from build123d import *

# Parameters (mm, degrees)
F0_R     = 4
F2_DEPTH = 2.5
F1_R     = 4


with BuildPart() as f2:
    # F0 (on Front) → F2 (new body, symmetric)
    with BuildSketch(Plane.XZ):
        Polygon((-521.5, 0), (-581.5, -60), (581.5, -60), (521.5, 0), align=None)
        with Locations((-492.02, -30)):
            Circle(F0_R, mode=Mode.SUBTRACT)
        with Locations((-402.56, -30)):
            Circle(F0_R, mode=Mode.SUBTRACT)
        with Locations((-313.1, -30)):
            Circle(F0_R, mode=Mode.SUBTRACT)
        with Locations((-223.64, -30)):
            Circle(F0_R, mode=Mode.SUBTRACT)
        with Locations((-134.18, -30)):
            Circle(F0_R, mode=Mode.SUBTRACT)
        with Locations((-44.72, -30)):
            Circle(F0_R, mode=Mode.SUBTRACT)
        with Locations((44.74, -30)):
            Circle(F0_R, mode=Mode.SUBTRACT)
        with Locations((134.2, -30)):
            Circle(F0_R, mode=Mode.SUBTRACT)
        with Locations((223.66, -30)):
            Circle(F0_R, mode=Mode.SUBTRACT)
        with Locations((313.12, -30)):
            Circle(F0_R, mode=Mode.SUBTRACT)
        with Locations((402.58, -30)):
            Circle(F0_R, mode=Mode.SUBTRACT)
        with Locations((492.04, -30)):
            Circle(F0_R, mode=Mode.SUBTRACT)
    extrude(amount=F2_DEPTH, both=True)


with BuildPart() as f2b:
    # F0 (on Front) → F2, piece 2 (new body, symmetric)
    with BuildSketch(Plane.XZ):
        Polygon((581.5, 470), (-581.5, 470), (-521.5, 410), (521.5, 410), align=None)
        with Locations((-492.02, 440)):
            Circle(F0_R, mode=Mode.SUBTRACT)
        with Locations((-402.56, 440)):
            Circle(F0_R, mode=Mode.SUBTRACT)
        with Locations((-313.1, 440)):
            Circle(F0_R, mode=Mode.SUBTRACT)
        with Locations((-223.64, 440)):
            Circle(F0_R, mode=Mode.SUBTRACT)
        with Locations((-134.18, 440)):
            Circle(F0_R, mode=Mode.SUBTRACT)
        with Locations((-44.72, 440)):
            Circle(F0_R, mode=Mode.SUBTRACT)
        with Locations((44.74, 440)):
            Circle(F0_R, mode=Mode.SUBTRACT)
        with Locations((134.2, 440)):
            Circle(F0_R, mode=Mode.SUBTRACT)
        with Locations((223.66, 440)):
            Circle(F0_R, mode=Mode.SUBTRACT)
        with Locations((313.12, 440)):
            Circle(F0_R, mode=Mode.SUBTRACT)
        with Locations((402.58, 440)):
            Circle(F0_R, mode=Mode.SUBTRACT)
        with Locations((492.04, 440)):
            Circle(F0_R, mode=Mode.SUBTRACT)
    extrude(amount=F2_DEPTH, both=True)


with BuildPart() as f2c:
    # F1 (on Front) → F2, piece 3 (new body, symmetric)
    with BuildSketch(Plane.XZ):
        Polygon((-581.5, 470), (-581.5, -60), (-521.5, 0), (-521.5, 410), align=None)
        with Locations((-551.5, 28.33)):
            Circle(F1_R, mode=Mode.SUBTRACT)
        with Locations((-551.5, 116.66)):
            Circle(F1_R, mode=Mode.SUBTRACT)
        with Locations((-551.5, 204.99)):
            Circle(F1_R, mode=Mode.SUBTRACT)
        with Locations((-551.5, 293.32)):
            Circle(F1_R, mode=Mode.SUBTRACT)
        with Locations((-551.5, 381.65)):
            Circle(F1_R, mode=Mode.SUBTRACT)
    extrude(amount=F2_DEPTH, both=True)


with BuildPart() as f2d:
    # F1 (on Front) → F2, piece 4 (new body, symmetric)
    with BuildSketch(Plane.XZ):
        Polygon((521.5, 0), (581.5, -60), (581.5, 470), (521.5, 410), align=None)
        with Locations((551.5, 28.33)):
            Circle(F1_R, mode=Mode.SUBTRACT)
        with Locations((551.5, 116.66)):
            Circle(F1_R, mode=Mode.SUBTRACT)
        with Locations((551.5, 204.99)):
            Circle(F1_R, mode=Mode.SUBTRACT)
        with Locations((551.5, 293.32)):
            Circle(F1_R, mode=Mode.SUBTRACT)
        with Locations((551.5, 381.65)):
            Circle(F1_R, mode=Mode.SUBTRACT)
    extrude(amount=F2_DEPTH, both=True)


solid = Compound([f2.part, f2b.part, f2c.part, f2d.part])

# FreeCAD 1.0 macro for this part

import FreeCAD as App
import Part
import Sketcher
Q = App.Units.Quantity


def add_polygon(sketch, points):
    """Adds a closed chain of lines whose ends are joined by coincident constraints."""
    first, n = sketch.GeometryCount, len(points)
    for a, b in zip(points, points[1:] + points[:1]):
        sketch.addGeometry(Part.LineSegment(App.Vector(*a, 0), App.Vector(*b, 0)), False)
    for i in range(n):
        sketch.addConstraint(Sketcher.Constraint("Coincident", first + i, 2, first + (i + 1) % n, 1))

doc = App.newDocument("Part")
body = doc.addObject("PartDesign::Body", "Body")

# Sketch on XZ plane
sketch1 = body.newObject("Sketcher::SketchObject", "Sketch")
sketch1.AttachmentSupport = (doc.getObject("XZ_Plane"), [""])
sketch1.MapMode = "FlatFace"
add_polygon(sketch1, [(-521.5, 0), (-581.5, -60), (581.5, -60), (521.5, 0)])  # lines 0-3
sketch1.addGeometry(Part.Circle(App.Vector(-492, -30, 0), App.Vector(0, 0, 1), 4), False)  # 4
sketch1.addGeometry(Part.Circle(App.Vector(-402.6, -30, 0), App.Vector(0, 0, 1), 4), False)  # 5
sketch1.addGeometry(Part.Circle(App.Vector(-313.1, -30, 0), App.Vector(0, 0, 1), 4), False)  # 6
sketch1.addGeometry(Part.Circle(App.Vector(-223.6, -30, 0), App.Vector(0, 0, 1), 4), False)  # 7
sketch1.addGeometry(Part.Circle(App.Vector(-134.2, -30, 0), App.Vector(0, 0, 1), 4), False)  # 8
sketch1.addGeometry(Part.Circle(App.Vector(-44.7, -30, 0), App.Vector(0, 0, 1), 4), False)  # 9
sketch1.addGeometry(Part.Circle(App.Vector(44.7, -30, 0), App.Vector(0, 0, 1), 4), False)  # 10
sketch1.addGeometry(Part.Circle(App.Vector(134.2, -30, 0), App.Vector(0, 0, 1), 4), False)  # 11
sketch1.addGeometry(Part.Circle(App.Vector(223.7, -30, 0), App.Vector(0, 0, 1), 4), False)  # 12
sketch1.addGeometry(Part.Circle(App.Vector(313.1, -30, 0), App.Vector(0, 0, 1), 4), False)  # 13
sketch1.addGeometry(Part.Circle(App.Vector(402.6, -30, 0), App.Vector(0, 0, 1), 4), False)  # 14
sketch1.addGeometry(Part.Circle(App.Vector(492, -30, 0), App.Vector(0, 0, 1), 4), False)  # 15
sketch1.addConstraint(Sketcher.Constraint("Horizontal", 1))
sketch1.addConstraint(Sketcher.Constraint("Horizontal", 3))
sketch1.addConstraint(Sketcher.Constraint("Equal", 4, 5))
sketch1.addConstraint(Sketcher.Constraint("Equal", 5, 6))
sketch1.addConstraint(Sketcher.Constraint("Equal", 6, 7))
sketch1.addConstraint(Sketcher.Constraint("Equal", 7, 8))
sketch1.addConstraint(Sketcher.Constraint("Equal", 8, 9))
sketch1.addConstraint(Sketcher.Constraint("Equal", 9, 10))
sketch1.addConstraint(Sketcher.Constraint("Equal", 10, 11))
sketch1.addConstraint(Sketcher.Constraint("Equal", 11, 12))
sketch1.addConstraint(Sketcher.Constraint("Equal", 12, 13))
sketch1.addConstraint(Sketcher.Constraint("Equal", 13, 14))
sketch1.addConstraint(Sketcher.Constraint("Equal", 14, 15))
sketch1.addConstraint(Sketcher.Constraint("Symmetric", 2, 2, 3, 2, -1, 1))
sketch1.addConstraint(Sketcher.Constraint("Perpendicular", 0, 2))
sketch1.addConstraint(Sketcher.Constraint("Horizontal", 4, 3, 5, 3))
sketch1.addConstraint(Sketcher.Constraint("Horizontal", 5, 3, 6, 3))
sketch1.addConstraint(Sketcher.Constraint("Horizontal", 6, 3, 7, 3))
sketch1.addConstraint(Sketcher.Constraint("Horizontal", 7, 3, 8, 3))
sketch1.addConstraint(Sketcher.Constraint("Horizontal", 8, 3, 9, 3))
sketch1.addConstraint(Sketcher.Constraint("Horizontal", 9, 3, 10, 3))
sketch1.addConstraint(Sketcher.Constraint("Horizontal", 10, 3, 11, 3))
sketch1.addConstraint(Sketcher.Constraint("Horizontal", 11, 3, 12, 3))
sketch1.addConstraint(Sketcher.Constraint("Horizontal", 12, 3, 13, 3))
sketch1.addConstraint(Sketcher.Constraint("Horizontal", 13, 3, 14, 3))
sketch1.addConstraint(Sketcher.Constraint("Horizontal", 14, 3, 15, 3))
sketch1.addConstraint(Sketcher.Constraint("Equal", 0, 2))
sketch1.addConstraint(Sketcher.Constraint("Diameter", 4, Q("8 mm")))
sketch1.addConstraint(Sketcher.Constraint("DistanceX", 1, 1, 1, 2, Q("1163 mm")))
sketch1.addConstraint(Sketcher.Constraint("DistanceX", 3, 2, 3, 1, Q("1043 mm")))
sketch1.addConstraint(Sketcher.Constraint("DistanceY", 4, 3, -1, 1, Q("30 mm")))
sketch1.addConstraint(Sketcher.Constraint("DistanceX", 6, 3, -1, 1, Q("313.1 mm")))
sketch1.addConstraint(Sketcher.Constraint("DistanceX", -1, 1, 11, 3, Q("134.2 mm")))
sketch1.addConstraint(Sketcher.Constraint("DistanceX", 4, 3, 9, 3, Q("447.3 mm")))
sketch1.addConstraint(Sketcher.Constraint("DistanceX", 5, 3, 10, 3, Q("447.3 mm")))
sketch1.addConstraint(Sketcher.Constraint("DistanceX", 7, 3, 12, 3, Q("447.3 mm")))
sketch1.addConstraint(Sketcher.Constraint("DistanceX", 8, 3, 13, 3, Q("447.3 mm")))
sketch1.addConstraint(Sketcher.Constraint("DistanceX", 9, 3, 14, 3, Q("447.3 mm")))
sketch1.addConstraint(Sketcher.Constraint("DistanceX", 10, 3, 15, 3, Q("447.3 mm")))
sketch1.addConstraint(Sketcher.Constraint("DistanceX", 4, 3, -1, 1, Q("492.02 mm")))
sketch1.addConstraint(Sketcher.Constraint("DistanceX", 5, 3, -1, 1, Q("402.56 mm")))
sketch1.addConstraint(Sketcher.Constraint("DistanceX", 7, 3, -1, 1, Q("223.64 mm")))
sketch1.addConstraint(Sketcher.Constraint("DistanceX", 8, 3, -1, 1, Q("134.18 mm")))
pad1 = body.newObject("PartDesign::Pad", "Pad")
pad1.Profile = sketch1
pad1.Length = 5
pad1.Midplane = True
body2 = doc.addObject("PartDesign::Body", "Body001")

# Sketch on XZ plane
sketch2 = body2.newObject("Sketcher::SketchObject", "Sketch001")
sketch2.AttachmentSupport = (doc.getObject("XZ_Plane001"), [""])
sketch2.MapMode = "FlatFace"
add_polygon(sketch2, [(581.5, 470), (-581.5, 470), (-521.5, 410), (521.5, 410)])  # lines 0-3
sketch2.addGeometry(Part.Circle(App.Vector(-492, 440, 0), App.Vector(0, 0, 1), 4), False)  # 4
sketch2.addGeometry(Part.Circle(App.Vector(-402.6, 440, 0), App.Vector(0, 0, 1), 4), False)  # 5
sketch2.addGeometry(Part.Circle(App.Vector(-313.1, 440, 0), App.Vector(0, 0, 1), 4), False)  # 6
sketch2.addGeometry(Part.Circle(App.Vector(-223.6, 440, 0), App.Vector(0, 0, 1), 4), False)  # 7
sketch2.addGeometry(Part.Circle(App.Vector(-134.2, 440, 0), App.Vector(0, 0, 1), 4), False)  # 8
sketch2.addGeometry(Part.Circle(App.Vector(-44.7, 440, 0), App.Vector(0, 0, 1), 4), False)  # 9
sketch2.addGeometry(Part.Circle(App.Vector(44.7, 440, 0), App.Vector(0, 0, 1), 4), False)  # 10
sketch2.addGeometry(Part.Circle(App.Vector(134.2, 440, 0), App.Vector(0, 0, 1), 4), False)  # 11
sketch2.addGeometry(Part.Circle(App.Vector(223.7, 440, 0), App.Vector(0, 0, 1), 4), False)  # 12
sketch2.addGeometry(Part.Circle(App.Vector(313.1, 440, 0), App.Vector(0, 0, 1), 4), False)  # 13
sketch2.addGeometry(Part.Circle(App.Vector(402.6, 440, 0), App.Vector(0, 0, 1), 4), False)  # 14
sketch2.addGeometry(Part.Circle(App.Vector(492, 440, 0), App.Vector(0, 0, 1), 4), False)  # 15
sketch2.addConstraint(Sketcher.Constraint("Horizontal", 0))
sketch2.addConstraint(Sketcher.Constraint("Horizontal", 2))
sketch2.addConstraint(Sketcher.Constraint("Equal", 4, 5))
sketch2.addConstraint(Sketcher.Constraint("Equal", 5, 6))
sketch2.addConstraint(Sketcher.Constraint("Equal", 6, 7))
sketch2.addConstraint(Sketcher.Constraint("Equal", 7, 8))
sketch2.addConstraint(Sketcher.Constraint("Equal", 8, 9))
sketch2.addConstraint(Sketcher.Constraint("Equal", 9, 10))
sketch2.addConstraint(Sketcher.Constraint("Equal", 10, 11))
sketch2.addConstraint(Sketcher.Constraint("Equal", 11, 12))
sketch2.addConstraint(Sketcher.Constraint("Equal", 12, 13))
sketch2.addConstraint(Sketcher.Constraint("Equal", 13, 14))
sketch2.addConstraint(Sketcher.Constraint("Equal", 14, 15))
sketch2.addConstraint(Sketcher.Constraint("Perpendicular", 1, 3))
sketch2.addConstraint(Sketcher.Constraint("Horizontal", 4, 3, 5, 3))
sketch2.addConstraint(Sketcher.Constraint("Horizontal", 5, 3, 6, 3))
sketch2.addConstraint(Sketcher.Constraint("Horizontal", 6, 3, 7, 3))
sketch2.addConstraint(Sketcher.Constraint("Horizontal", 7, 3, 8, 3))
sketch2.addConstraint(Sketcher.Constraint("Horizontal", 8, 3, 9, 3))
sketch2.addConstraint(Sketcher.Constraint("Horizontal", 9, 3, 10, 3))
sketch2.addConstraint(Sketcher.Constraint("Horizontal", 10, 3, 11, 3))
sketch2.addConstraint(Sketcher.Constraint("Horizontal", 11, 3, 12, 3))
sketch2.addConstraint(Sketcher.Constraint("Horizontal", 12, 3, 13, 3))
sketch2.addConstraint(Sketcher.Constraint("Horizontal", 13, 3, 14, 3))
sketch2.addConstraint(Sketcher.Constraint("Horizontal", 14, 3, 15, 3))
sketch2.addConstraint(Sketcher.Constraint("Equal", 1, 3))
sketch2.addConstraint(Sketcher.Constraint("Diameter", 4, Q("8 mm")))
sketch2.addConstraint(Sketcher.Constraint("DistanceX", 0, 2, 0, 1, Q("1163 mm")))
sketch2.addConstraint(Sketcher.Constraint("DistanceX", 2, 1, 2, 2, Q("1043 mm")))
sketch2.addConstraint(Sketcher.Constraint("DistanceY", -1, 1, 4, 3, Q("440 mm")))
sketch2.addConstraint(Sketcher.Constraint("DistanceY", -1, 1, 0, 2, Q("470 mm")))
sketch2.addConstraint(Sketcher.Constraint("DistanceX", 6, 3, -1, 1, Q("313.1 mm")))
sketch2.addConstraint(Sketcher.Constraint("DistanceX", -1, 1, 11, 3, Q("134.2 mm")))
sketch2.addConstraint(Sketcher.Constraint("DistanceX", 0, 2, -1, 1, Q("581.5 mm")))
sketch2.addConstraint(Sketcher.Constraint("DistanceX", 4, 3, 9, 3, Q("447.3 mm")))
sketch2.addConstraint(Sketcher.Constraint("DistanceX", 5, 3, 10, 3, Q("447.3 mm")))
sketch2.addConstraint(Sketcher.Constraint("DistanceX", 7, 3, 12, 3, Q("447.3 mm")))
sketch2.addConstraint(Sketcher.Constraint("DistanceX", 8, 3, 13, 3, Q("447.3 mm")))
sketch2.addConstraint(Sketcher.Constraint("DistanceX", 9, 3, 14, 3, Q("447.3 mm")))
sketch2.addConstraint(Sketcher.Constraint("DistanceX", 10, 3, 15, 3, Q("447.3 mm")))
sketch2.addConstraint(Sketcher.Constraint("DistanceX", 4, 3, -1, 1, Q("492.02 mm")))
sketch2.addConstraint(Sketcher.Constraint("DistanceX", 5, 3, -1, 1, Q("402.56 mm")))
sketch2.addConstraint(Sketcher.Constraint("DistanceX", 7, 3, -1, 1, Q("223.64 mm")))
sketch2.addConstraint(Sketcher.Constraint("DistanceX", 8, 3, -1, 1, Q("134.18 mm")))
pad2 = body2.newObject("PartDesign::Pad", "Pad001")
pad2.Profile = sketch2
pad2.Length = 5
pad2.Midplane = True
body3 = doc.addObject("PartDesign::Body", "Body002")

# Sketch on XZ plane
sketch3 = body3.newObject("Sketcher::SketchObject", "Sketch002")
sketch3.AttachmentSupport = (doc.getObject("XZ_Plane002"), [""])
sketch3.MapMode = "FlatFace"
add_polygon(sketch3, [(-581.5, 470), (-581.5, -60), (-521.5, 0), (-521.5, 410)])  # lines 0-3
sketch3.addGeometry(Part.Circle(App.Vector(-551.5, 28.3, 0), App.Vector(0, 0, 1), 4), False)  # 4
sketch3.addGeometry(Part.Circle(App.Vector(-551.5, 116.7, 0), App.Vector(0, 0, 1), 4), False)  # 5
sketch3.addGeometry(Part.Circle(App.Vector(-551.5, 205, 0), App.Vector(0, 0, 1), 4), False)  # 6
sketch3.addGeometry(Part.Circle(App.Vector(-551.5, 293.3, 0), App.Vector(0, 0, 1), 4), False)  # 7
sketch3.addGeometry(Part.Circle(App.Vector(-551.5, 381.6, 0), App.Vector(0, 0, 1), 4), False)  # 8
sketch3.addConstraint(Sketcher.Constraint("Vertical", 0))
sketch3.addConstraint(Sketcher.Constraint("Vertical", 2))
sketch3.addConstraint(Sketcher.Constraint("Equal", 4, 5))
sketch3.addConstraint(Sketcher.Constraint("Equal", 5, 6))
sketch3.addConstraint(Sketcher.Constraint("Equal", 6, 7))
sketch3.addConstraint(Sketcher.Constraint("Equal", 7, 8))
sketch3.addConstraint(Sketcher.Constraint("PointOnObject", 1, 2, -1))
sketch3.addConstraint(Sketcher.Constraint("Perpendicular", 1, 3))
sketch3.addConstraint(Sketcher.Constraint("Vertical", 4, 3, 5, 3))
sketch3.addConstraint(Sketcher.Constraint("Vertical", 5, 3, 6, 3))
sketch3.addConstraint(Sketcher.Constraint("Vertical", 6, 3, 7, 3))
sketch3.addConstraint(Sketcher.Constraint("Vertical", 7, 3, 8, 3))
sketch3.addConstraint(Sketcher.Constraint("Equal", 1, 3))
sketch3.addConstraint(Sketcher.Constraint("Diameter", 4, Q("8 mm")))
sketch3.addConstraint(Sketcher.Constraint("DistanceY", 0, 2, 0, 1, Q("530 mm")))
sketch3.addConstraint(Sketcher.Constraint("DistanceY", 2, 1, 2, 2, Q("410 mm")))
sketch3.addConstraint(Sketcher.Constraint("DistanceX", 0, 2, 4, 3, Q("30 mm")))
sketch3.addConstraint(Sketcher.Constraint("DistanceX", 4, 3, -1, 1, Q("551.5 mm")))
sketch3.addConstraint(Sketcher.Constraint("DistanceY", -1, 1, 4, 3, Q("28.33 mm")))
sketch3.addConstraint(Sketcher.Constraint("DistanceY", -1, 1, 5, 3, Q("116.66 mm")))
sketch3.addConstraint(Sketcher.Constraint("DistanceY", -1, 1, 6, 3, Q("204.99 mm")))
sketch3.addConstraint(Sketcher.Constraint("DistanceY", -1, 1, 7, 3, Q("293.32 mm")))
sketch3.addConstraint(Sketcher.Constraint("DistanceY", -1, 1, 8, 3, Q("381.65 mm")))
pad3 = body3.newObject("PartDesign::Pad", "Pad002")
pad3.Profile = sketch3
pad3.Length = 5
pad3.Midplane = True
body4 = doc.addObject("PartDesign::Body", "Body003")

# Sketch on XZ plane
sketch4 = body4.newObject("Sketcher::SketchObject", "Sketch003")
sketch4.AttachmentSupport = (doc.getObject("XZ_Plane003"), [""])
sketch4.MapMode = "FlatFace"
add_polygon(sketch4, [(521.5, 0), (581.5, -60), (581.5, 470), (521.5, 410)])  # lines 0-3
sketch4.addGeometry(Part.Circle(App.Vector(551.5, 28.3, 0), App.Vector(0, 0, 1), 4), False)  # 4
sketch4.addGeometry(Part.Circle(App.Vector(551.5, 116.7, 0), App.Vector(0, 0, 1), 4), False)  # 5
sketch4.addGeometry(Part.Circle(App.Vector(551.5, 205, 0), App.Vector(0, 0, 1), 4), False)  # 6
sketch4.addGeometry(Part.Circle(App.Vector(551.5, 293.3, 0), App.Vector(0, 0, 1), 4), False)  # 7
sketch4.addGeometry(Part.Circle(App.Vector(551.5, 381.6, 0), App.Vector(0, 0, 1), 4), False)  # 8
sketch4.addConstraint(Sketcher.Constraint("Vertical", 1))
sketch4.addConstraint(Sketcher.Constraint("Vertical", 3))
sketch4.addConstraint(Sketcher.Constraint("Equal", 4, 5))
sketch4.addConstraint(Sketcher.Constraint("Equal", 5, 6))
sketch4.addConstraint(Sketcher.Constraint("Equal", 6, 7))
sketch4.addConstraint(Sketcher.Constraint("Equal", 7, 8))
sketch4.addConstraint(Sketcher.Constraint("PointOnObject", 3, 2, -1))
sketch4.addConstraint(Sketcher.Constraint("Perpendicular", 0, 2))
sketch4.addConstraint(Sketcher.Constraint("Vertical", 4, 3, 5, 3))
sketch4.addConstraint(Sketcher.Constraint("Vertical", 5, 3, 6, 3))
sketch4.addConstraint(Sketcher.Constraint("Vertical", 6, 3, 7, 3))
sketch4.addConstraint(Sketcher.Constraint("Vertical", 7, 3, 8, 3))
sketch4.addConstraint(Sketcher.Constraint("Equal", 0, 2))
sketch4.addConstraint(Sketcher.Constraint("Diameter", 4, Q("8 mm")))
sketch4.addConstraint(Sketcher.Constraint("DistanceY", 1, 1, 1, 2, Q("530 mm")))
sketch4.addConstraint(Sketcher.Constraint("DistanceY", 3, 2, 3, 1, Q("410 mm")))
sketch4.addConstraint(Sketcher.Constraint("DistanceX", 4, 3, 0, 2, Q("30 mm")))
sketch4.addConstraint(Sketcher.Constraint("DistanceX", -1, 1, 4, 3, Q("551.5 mm")))
sketch4.addConstraint(Sketcher.Constraint("DistanceY", -1, 1, 4, 3, Q("28.33 mm")))
sketch4.addConstraint(Sketcher.Constraint("DistanceY", -1, 1, 5, 3, Q("116.66 mm")))
sketch4.addConstraint(Sketcher.Constraint("DistanceY", -1, 1, 6, 3, Q("204.99 mm")))
sketch4.addConstraint(Sketcher.Constraint("DistanceY", -1, 1, 7, 3, Q("293.32 mm")))
sketch4.addConstraint(Sketcher.Constraint("DistanceY", -1, 1, 8, 3, Q("381.65 mm")))
pad4 = body4.newObject("PartDesign::Pad", "Pad003")
pad4.Profile = sketch4
pad4.Length = 5
pad4.Midplane = True

doc.recompute()
